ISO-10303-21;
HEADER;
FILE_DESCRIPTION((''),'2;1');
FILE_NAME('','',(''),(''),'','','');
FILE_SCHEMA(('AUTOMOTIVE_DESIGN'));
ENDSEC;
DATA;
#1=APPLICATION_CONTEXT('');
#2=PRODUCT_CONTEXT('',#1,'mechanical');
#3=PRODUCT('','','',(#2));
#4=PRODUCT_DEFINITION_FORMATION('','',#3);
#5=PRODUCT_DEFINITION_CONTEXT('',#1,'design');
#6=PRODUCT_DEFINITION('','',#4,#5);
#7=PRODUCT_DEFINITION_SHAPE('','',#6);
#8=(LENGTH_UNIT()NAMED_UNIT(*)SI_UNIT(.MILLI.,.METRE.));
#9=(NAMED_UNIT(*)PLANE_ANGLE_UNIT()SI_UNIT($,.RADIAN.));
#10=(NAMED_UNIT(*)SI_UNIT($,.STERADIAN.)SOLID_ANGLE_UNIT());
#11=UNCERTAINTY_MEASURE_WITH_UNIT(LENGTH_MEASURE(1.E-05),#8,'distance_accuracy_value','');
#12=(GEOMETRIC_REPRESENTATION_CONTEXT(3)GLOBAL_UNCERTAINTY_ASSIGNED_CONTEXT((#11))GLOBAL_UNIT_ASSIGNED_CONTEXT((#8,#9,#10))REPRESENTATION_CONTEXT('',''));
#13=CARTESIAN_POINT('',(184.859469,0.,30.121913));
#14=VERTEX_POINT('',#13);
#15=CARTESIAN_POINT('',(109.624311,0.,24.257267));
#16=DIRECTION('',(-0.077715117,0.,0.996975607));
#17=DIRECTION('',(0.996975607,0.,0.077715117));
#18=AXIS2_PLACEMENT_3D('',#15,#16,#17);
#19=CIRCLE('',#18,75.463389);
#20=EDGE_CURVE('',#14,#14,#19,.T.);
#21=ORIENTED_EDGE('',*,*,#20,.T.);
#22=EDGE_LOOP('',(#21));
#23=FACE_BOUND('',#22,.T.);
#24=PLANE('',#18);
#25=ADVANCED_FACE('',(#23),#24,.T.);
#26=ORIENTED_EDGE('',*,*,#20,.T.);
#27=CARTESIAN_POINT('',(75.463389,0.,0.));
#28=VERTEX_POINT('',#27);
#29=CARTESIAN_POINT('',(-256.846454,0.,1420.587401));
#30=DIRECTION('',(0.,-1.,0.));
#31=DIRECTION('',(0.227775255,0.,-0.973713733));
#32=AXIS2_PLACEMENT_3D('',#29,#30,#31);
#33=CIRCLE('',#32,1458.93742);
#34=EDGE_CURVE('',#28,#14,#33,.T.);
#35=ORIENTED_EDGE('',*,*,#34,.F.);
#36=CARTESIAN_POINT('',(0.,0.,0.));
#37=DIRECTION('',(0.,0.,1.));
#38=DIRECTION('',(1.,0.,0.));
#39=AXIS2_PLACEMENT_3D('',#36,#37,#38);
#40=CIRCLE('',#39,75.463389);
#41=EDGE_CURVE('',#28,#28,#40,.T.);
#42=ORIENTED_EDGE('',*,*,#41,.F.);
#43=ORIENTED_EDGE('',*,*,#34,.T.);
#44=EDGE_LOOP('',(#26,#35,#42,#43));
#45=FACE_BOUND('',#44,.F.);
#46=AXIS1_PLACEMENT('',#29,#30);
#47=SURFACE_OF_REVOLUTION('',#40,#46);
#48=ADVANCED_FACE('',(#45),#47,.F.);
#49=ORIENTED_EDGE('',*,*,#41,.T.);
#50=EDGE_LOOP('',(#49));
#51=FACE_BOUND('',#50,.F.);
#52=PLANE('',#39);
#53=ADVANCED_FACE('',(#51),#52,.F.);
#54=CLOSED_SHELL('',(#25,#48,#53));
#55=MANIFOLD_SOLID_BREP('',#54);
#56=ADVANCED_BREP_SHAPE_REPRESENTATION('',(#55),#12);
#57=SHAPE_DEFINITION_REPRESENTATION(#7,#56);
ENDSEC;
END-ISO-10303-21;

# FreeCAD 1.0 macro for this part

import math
import FreeCAD as App
import Part
import Sketcher

V = App.Vector
Q = App.Units.Quantity

doc = App.newDocument("Part")
body = doc.addObject("PartDesign::Body", "Body")

# Sketch on XY plane
sketch1 = doc.addObject("Sketcher::SketchObject", "Sketch")
body.addObject(sketch1)
sketch1.AttachmentSupport = (doc.XY_Plane, [""])
sketch1.MapMode = "FlatFace"
sketch1.addGeometry(Part.Circle(V(0, 0, 0), V(0, 0, 1), 75), False)
sketch1.addConstraint([
    Sketcher.Constraint("Coincident", 0, 3, -1, 1),
    Sketcher.Constraint("Diameter", 0, Q("150.926778 mm")),
])

# Sketch on XZ plane
sketch2 = doc.addObject("Sketcher::SketchObject", "Sketch001")
body.addObject(sketch2)
sketch2.AttachmentSupport = (doc.XZ_Plane, [""])
sketch2.MapMode = "FlatFace"
sketch2.addGeometry(Part.ArcOfCircle(Part.Circle(V(-257, 1421, 0), V(0, 0, 1), 1444), math.radians(-79.75), math.radians(-75.29)), False)
sketch2.addConstraint([
    Sketcher.Constraint("Coincident", 0, 1, -1, 1),
    Sketcher.Constraint("Radius", 0, Q("1443.619986 mm")),
    Sketcher.Constraint("DistanceY", -1, 1, 0, 3, Q("1420.587401 mm")),
    Sketcher.Constraint("DistanceX", -1, 1, 0, 2, Q("109.624311 mm")),
])
doc.recompute()

additivepipe = doc.addObject("PartDesign::AdditivePipe", "AdditivePipe")
body.addObject(additivepipe)
additivepipe.Profile = sketch1
additivepipe.Spine = (sketch2, ["Edge1"])

doc.recompute()
